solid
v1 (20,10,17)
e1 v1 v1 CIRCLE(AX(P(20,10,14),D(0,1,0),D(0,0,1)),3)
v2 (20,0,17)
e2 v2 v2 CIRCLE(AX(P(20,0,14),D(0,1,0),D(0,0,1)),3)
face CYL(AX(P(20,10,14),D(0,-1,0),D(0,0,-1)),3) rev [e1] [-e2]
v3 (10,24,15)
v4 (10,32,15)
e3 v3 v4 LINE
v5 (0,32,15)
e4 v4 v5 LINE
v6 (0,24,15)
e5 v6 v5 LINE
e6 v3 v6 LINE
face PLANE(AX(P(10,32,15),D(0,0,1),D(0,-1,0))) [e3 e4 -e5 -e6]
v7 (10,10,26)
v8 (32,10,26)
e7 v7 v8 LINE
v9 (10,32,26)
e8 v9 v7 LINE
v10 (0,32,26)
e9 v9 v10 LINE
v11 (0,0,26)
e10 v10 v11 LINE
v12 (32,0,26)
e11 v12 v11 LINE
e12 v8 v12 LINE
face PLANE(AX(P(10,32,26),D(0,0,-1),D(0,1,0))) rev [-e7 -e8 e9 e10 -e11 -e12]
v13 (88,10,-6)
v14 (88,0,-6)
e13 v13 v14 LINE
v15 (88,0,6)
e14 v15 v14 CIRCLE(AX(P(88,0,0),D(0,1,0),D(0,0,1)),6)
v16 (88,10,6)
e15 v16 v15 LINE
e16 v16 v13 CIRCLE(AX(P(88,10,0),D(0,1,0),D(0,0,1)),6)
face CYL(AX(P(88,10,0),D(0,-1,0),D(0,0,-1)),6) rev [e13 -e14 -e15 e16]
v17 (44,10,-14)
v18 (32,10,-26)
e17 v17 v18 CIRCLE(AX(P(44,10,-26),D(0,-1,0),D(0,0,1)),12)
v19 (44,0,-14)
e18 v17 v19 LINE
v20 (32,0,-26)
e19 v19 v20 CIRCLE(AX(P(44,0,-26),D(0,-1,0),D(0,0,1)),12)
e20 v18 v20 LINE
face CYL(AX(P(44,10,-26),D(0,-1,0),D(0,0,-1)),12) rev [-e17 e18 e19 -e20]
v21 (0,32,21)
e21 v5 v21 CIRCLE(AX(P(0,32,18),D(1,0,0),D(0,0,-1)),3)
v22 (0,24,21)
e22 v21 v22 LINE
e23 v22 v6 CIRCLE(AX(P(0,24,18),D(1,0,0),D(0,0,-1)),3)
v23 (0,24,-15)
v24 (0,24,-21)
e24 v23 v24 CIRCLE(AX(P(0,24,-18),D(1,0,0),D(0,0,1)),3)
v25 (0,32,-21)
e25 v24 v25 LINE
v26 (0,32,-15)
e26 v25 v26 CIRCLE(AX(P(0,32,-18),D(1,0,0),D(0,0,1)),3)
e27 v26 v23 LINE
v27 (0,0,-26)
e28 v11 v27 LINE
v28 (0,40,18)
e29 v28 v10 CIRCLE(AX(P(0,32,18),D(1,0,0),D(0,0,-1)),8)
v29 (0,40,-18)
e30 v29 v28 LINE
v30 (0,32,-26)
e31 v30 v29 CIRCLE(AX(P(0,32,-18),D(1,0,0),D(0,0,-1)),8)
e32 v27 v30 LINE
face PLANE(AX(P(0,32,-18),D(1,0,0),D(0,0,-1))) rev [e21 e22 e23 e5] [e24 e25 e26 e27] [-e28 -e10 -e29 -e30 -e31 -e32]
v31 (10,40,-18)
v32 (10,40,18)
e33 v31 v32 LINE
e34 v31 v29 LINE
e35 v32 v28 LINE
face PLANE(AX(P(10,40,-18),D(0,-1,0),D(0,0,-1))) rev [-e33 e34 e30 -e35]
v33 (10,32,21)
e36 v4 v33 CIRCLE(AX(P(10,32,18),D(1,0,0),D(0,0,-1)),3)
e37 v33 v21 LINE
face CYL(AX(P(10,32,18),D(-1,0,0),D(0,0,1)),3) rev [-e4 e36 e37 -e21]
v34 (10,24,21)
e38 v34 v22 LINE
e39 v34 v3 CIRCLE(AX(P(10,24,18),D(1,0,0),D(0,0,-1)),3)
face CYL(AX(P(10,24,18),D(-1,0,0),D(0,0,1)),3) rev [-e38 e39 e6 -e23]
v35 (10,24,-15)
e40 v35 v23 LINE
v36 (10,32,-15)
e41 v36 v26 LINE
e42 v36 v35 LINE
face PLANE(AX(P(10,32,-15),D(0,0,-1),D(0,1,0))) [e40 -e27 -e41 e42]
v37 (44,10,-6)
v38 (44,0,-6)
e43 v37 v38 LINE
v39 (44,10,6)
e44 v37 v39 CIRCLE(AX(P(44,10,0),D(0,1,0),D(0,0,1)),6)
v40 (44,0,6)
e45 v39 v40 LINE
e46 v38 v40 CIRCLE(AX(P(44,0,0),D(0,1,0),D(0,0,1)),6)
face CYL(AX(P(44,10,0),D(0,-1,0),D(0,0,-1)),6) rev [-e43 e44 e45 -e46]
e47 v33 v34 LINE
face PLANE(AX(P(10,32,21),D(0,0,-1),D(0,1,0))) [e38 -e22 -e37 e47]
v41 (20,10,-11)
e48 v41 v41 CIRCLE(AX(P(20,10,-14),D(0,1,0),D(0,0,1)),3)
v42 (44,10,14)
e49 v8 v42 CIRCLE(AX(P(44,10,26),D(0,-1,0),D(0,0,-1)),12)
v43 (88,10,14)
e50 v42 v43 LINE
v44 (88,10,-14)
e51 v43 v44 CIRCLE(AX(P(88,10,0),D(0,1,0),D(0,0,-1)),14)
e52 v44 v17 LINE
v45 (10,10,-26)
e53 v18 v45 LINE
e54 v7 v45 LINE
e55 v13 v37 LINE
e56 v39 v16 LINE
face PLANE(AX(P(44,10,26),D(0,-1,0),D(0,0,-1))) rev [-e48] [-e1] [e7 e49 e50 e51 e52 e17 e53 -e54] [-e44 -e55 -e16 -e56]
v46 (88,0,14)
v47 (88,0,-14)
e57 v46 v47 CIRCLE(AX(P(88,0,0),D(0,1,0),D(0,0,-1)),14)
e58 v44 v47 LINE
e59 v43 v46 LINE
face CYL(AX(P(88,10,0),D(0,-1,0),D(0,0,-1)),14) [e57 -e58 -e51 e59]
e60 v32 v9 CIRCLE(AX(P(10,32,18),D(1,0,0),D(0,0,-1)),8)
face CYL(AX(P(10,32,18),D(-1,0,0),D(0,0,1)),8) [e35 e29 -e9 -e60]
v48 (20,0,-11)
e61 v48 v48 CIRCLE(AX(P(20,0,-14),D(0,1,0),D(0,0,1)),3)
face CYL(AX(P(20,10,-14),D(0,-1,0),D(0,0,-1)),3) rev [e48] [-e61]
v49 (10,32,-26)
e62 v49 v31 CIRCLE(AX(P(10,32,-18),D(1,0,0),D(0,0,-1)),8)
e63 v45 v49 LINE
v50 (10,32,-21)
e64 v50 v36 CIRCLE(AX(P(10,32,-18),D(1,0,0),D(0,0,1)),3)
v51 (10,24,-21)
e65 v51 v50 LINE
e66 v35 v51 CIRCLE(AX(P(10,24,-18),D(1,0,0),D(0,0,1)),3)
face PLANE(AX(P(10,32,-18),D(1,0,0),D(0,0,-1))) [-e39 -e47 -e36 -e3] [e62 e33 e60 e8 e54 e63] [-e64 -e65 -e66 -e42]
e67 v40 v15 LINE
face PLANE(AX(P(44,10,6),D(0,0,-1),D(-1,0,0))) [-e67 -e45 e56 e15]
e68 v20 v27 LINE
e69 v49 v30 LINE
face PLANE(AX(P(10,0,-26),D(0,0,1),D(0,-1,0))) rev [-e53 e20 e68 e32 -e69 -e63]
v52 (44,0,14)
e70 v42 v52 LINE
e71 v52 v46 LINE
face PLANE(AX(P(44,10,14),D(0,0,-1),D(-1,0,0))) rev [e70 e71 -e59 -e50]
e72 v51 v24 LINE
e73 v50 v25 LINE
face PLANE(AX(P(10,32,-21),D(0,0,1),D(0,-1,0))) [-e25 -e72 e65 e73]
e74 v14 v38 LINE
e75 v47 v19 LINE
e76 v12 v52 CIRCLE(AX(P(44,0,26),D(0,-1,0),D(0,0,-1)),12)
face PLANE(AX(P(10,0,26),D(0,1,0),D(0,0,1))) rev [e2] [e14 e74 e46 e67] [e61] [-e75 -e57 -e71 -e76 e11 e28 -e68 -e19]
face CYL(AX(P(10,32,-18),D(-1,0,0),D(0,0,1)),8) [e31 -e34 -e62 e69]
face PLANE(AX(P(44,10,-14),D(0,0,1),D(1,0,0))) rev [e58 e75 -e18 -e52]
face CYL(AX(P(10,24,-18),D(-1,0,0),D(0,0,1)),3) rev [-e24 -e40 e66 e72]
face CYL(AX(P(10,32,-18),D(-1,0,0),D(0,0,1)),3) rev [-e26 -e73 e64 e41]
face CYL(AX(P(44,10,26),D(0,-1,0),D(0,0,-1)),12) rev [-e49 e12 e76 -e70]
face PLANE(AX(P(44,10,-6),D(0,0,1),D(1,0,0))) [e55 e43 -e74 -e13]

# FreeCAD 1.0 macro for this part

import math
import FreeCAD as App
import Part
import Sketcher
Q = App.Units.Quantity

doc = App.newDocument("Part")
params = doc.addObject("Spreadsheet::Sheet", "Params")
for row, (alias, value) in enumerate([
    ("sketch1_radius", "8 mm"),
    ("sketch1_radius2", "3 mm"),
    ("sketch1_width", "32 mm"),
    ("sketch1_width2", "8 mm"),
    ("sketch1_height", "52 mm"),
    ("pad1_length", "10 mm"),
    ("sketch2_diameter", "6 mm"),
    ("sketch2_radius", "12 mm"),
    ("sketch2_radius2", "14 mm"),
    ("sketch2_radius3", "6 mm"),
    ("sketch2_width", "32 mm"),
    ("pad2_length", "10 mm"),
], start=1):
    params.set(f"A{row}", alias)
    params.set(f"B{row}", "=" + value)
    params.setAlias(f"B{row}", alias)

body = doc.addObject("PartDesign::Body", "Body")

sketch1 = doc.addObject("Sketcher::SketchObject", "Sketch")
body.addObject(sketch1)
sketch1.AttachmentSupport = (doc.YZ_Plane, [""])
sketch1.MapMode = "FlatFace"
sketch1.addGeometry([
    Part.LineSegment(App.Vector(0, 26, 0), App.Vector(0, -26, 0)),
    Part.LineSegment(App.Vector(0, -26, 0), App.Vector(32, -26, 0)),
    Part.ArcOfCircle(Part.Circle(App.Vector(32, -18, 0), App.Vector(0, 0, 1), 8), math.radians(-90), math.radians(0)),
    Part.LineSegment(App.Vector(40, -18, 0), App.Vector(40, 18, 0)),
    Part.ArcOfCircle(Part.Circle(App.Vector(32, 18, 0), App.Vector(0, 0, 1), 8), math.radians(0), math.radians(90)),
    Part.LineSegment(App.Vector(32, 26, 0), App.Vector(0, 26, 0)),
    Part.ArcOfCircle(Part.Circle(App.Vector(32, 18, 0), App.Vector(0, 0, 1), 3), math.radians(-90), math.radians(90)),
    Part.LineSegment(App.Vector(32, 15, 0), App.Vector(24, 15, 0)),
    Part.ArcOfCircle(Part.Circle(App.Vector(24, 18, 0), App.Vector(0, 0, 1), 3), math.radians(90), math.radians(270)),
    Part.LineSegment(App.Vector(24, 21, 0), App.Vector(32, 21, 0)),
    Part.LineSegment(App.Vector(24, -15, 0), App.Vector(32, -15, 0)),
    Part.ArcOfCircle(Part.Circle(App.Vector(32, -18, 0), App.Vector(0, 0, 1), 3), math.radians(-90), math.radians(90)),
    Part.LineSegment(App.Vector(32, -21, 0), App.Vector(24, -21, 0)),
    Part.ArcOfCircle(Part.Circle(App.Vector(24, -18, 0), App.Vector(0, 0, 1), 3), math.radians(90), math.radians(270)),
], False)
sketch1.addConstraint([
    Sketcher.Constraint("Coincident", 0, 2, 1, 1),
    Sketcher.Constraint("Tangent", 1, 2, 2, 1),
    Sketcher.Constraint("Tangent", 2, 2, 3, 1),
    Sketcher.Constraint("Tangent", 3, 2, 4, 1),
    Sketcher.Constraint("Tangent", 4, 2, 5, 1),
    Sketcher.Constraint("Coincident", 5, 2, 0, 1),
    Sketcher.Constraint("Tangent", 6, 1, 7, 1),
    Sketcher.Constraint("Tangent", 7, 2, 8, 2),
    Sketcher.Constraint("Tangent", 8, 1, 9, 1),
    Sketcher.Constraint("Tangent", 9, 2, 6, 2),
    Sketcher.Constraint("Tangent", 10, 2, 11, 2),
    Sketcher.Constraint("Tangent", 11, 1, 12, 1),
    Sketcher.Constraint("Tangent", 12, 2, 13, 2),
    Sketcher.Constraint("Tangent", 13, 1, 10, 1),
    Sketcher.Constraint("Vertical", 0),
    Sketcher.Constraint("Horizontal", 1),
    Sketcher.Constraint("Vertical", 3),
    Sketcher.Constraint("Horizontal", 5),
    Sketcher.Constraint("Horizontal", 7),
    Sketcher.Constraint("Horizontal", 9),
    Sketcher.Constraint("Horizontal", 10),
    Sketcher.Constraint("Horizontal", 12),
    Sketcher.Constraint("Coincident", 6, 3, 4, 3),
    Sketcher.Constraint("Coincident", 11, 3, 2, 3),
    Sketcher.Constraint("Equal", 2, 4),
    Sketcher.Constraint("Equal", 8, 11),
    Sketcher.Constraint("Symmetric", 0, 2, 5, 2, -1, 1),
    Sketcher.Constraint("Vertical", 8, 3, 13, 3),
    Sketcher.Constraint("Radius", 2, Q("8 mm")),
    Sketcher.Constraint("Radius", 6, Q("3 mm")),
    Sketcher.Constraint("DistanceX", 1, 1, 1, 2, Q("32 mm")),
    Sketcher.Constraint("DistanceX", 7, 2, 7, 1, Q("8 mm")),
    Sketcher.Constraint("DistanceY", 0, 2, 0, 1, Q("52 mm")),
])
sketch1.setExpression("Constraints[28]", "Params.sketch1_radius")
sketch1.setExpression("Constraints[29]", "Params.sketch1_radius2")
sketch1.setExpression("Constraints[30]", "Params.sketch1_width")
sketch1.setExpression("Constraints[31]", "Params.sketch1_width2")
sketch1.setExpression("Constraints[32]", "Params.sketch1_height")
pad1 = doc.addObject("PartDesign::Pad", "Pad")
body.addObject(pad1)
pad1.Profile = sketch1
pad1.setExpression("Length", "Params.pad1_length")

sketch2 = doc.addObject("Sketcher::SketchObject", "Sketch001")
body.addObject(sketch2)
sketch2.AttachmentSupport = (doc.XZ_Plane, [""])
sketch2.MapMode = "FlatFace"
sketch2.addGeometry([
    Part.LineSegment(App.Vector(32, -26, 0), App.Vector(0, -26, 0)),
    Part.LineSegment(App.Vector(0, -26, 0), App.Vector(0, 26, 0)),
    Part.LineSegment(App.Vector(0, 26, 0), App.Vector(32, 26, 0)),
    Part.ArcOfCircle(Part.Circle(App.Vector(44, 26, 0), App.Vector(0, 0, 1), 12), math.radians(-180), math.radians(-90)),
    Part.LineSegment(App.Vector(44, 14, 0), App.Vector(88, 14, 0)),
    Part.ArcOfCircle(Part.Circle(App.Vector(88, 0, 0), App.Vector(0, 0, 1), 14), math.radians(-90), math.radians(90)),
    Part.LineSegment(App.Vector(88, -14, 0), App.Vector(44, -14, 0)),
    Part.ArcOfCircle(Part.Circle(App.Vector(44, -26, 0), App.Vector(0, 0, 1), 12), math.radians(90), math.radians(180)),
    Part.Circle(App.Vector(20, 14, 0), App.Vector(0, 0, 1), 3),
    Part.LineSegment(App.Vector(44, -6, 0), App.Vector(88, -6, 0)),
    Part.ArcOfCircle(Part.Circle(App.Vector(88, 0, 0), App.Vector(0, 0, 1), 6), math.radians(-90), math.radians(90)),
    Part.LineSegment(App.Vector(88, 6, 0), App.Vector(44, 6, 0)),
    Part.ArcOfCircle(Part.Circle(App.Vector(44, 0, 0), App.Vector(0, 0, 1), 6), math.radians(90), math.radians(270)),
    Part.Circle(App.Vector(20, -14, 0), App.Vector(0, 0, 1), 3),
], False)
sketch2.addConstraint([
    Sketcher.Constraint("Coincident", 0, 2, 1, 1),
    Sketcher.Constraint("Coincident", 1, 2, 2, 1),
    Sketcher.Constraint("Coincident", 2, 2, 3, 1),
    Sketcher.Constraint("Tangent", 3, 2, 4, 1),
    Sketcher.Constraint("Tangent", 4, 2, 5, 2),
    Sketcher.Constraint("Tangent", 5, 1, 6, 1),
    Sketcher.Constraint("Tangent", 6, 2, 7, 1),
    Sketcher.Constraint("Coincident", 7, 2, 0, 1),
    Sketcher.Constraint("Tangent", 9, 2, 10, 1),
    Sketcher.Constraint("Tangent", 10, 2, 11, 1),
    Sketcher.Constraint("Tangent", 11, 2, 12, 1),
    Sketcher.Constraint("Tangent", 12, 2, 9, 1),
    Sketcher.Constraint("Horizontal", 0),
    Sketcher.Constraint("Vertical", 1),
    Sketcher.Constraint("Horizontal", 2),
    Sketcher.Constraint("Horizontal", 4),
    Sketcher.Constraint("Horizontal", 6),
    Sketcher.Constraint("Horizontal", 9),
    Sketcher.Constraint("Horizontal", 11),
    Sketcher.Constraint("Coincident", 10, 3, 5, 3),
    Sketcher.Constraint("Equal", 3, 7),
    Sketcher.Constraint("Equal", 8, 13),
    Sketcher.Constraint("Symmetric", 0, 2, 1, 2, -1, 1),
    Sketcher.Constraint("Symmetric", 3, 3, 7, 3, -1),
    Sketcher.Constraint("Symmetric", 8, 3, 13, 3, -1),
    Sketcher.Constraint("Horizontal", 7, 3, 0, 2),
    Sketcher.Constraint("Horizontal", 8, 3, 3, 2),
    Sketcher.Constraint("Vertical", 7, 3, 12, 3),
    Sketcher.Constraint("Diameter", 8, Q("6 mm")),
    Sketcher.Constraint("Radius", 3, Q("12 mm")),
    Sketcher.Constraint("Radius", 5, Q("14 mm")),
    Sketcher.Constraint("Radius", 10, Q("6 mm")),
    Sketcher.Constraint("DistanceX", 0, 2, 0, 1, Q("32 mm")),
    Sketcher.Constraint("DistanceX", 4, 1, 4, 2, Q("44 mm")),
    Sketcher.Constraint("DistanceX", -1, 1, 8, 3, Q("20 mm")),
])
sketch2.setExpression("Constraints[28]", "Params.sketch2_diameter")
sketch2.setExpression("Constraints[29]", "Params.sketch2_radius")
sketch2.setExpression("Constraints[30]", "Params.sketch2_radius2")
sketch2.setExpression("Constraints[31]", "Params.sketch2_radius3")
sketch2.setExpression("Constraints[32]", "Params.sketch2_width")
pad2 = doc.addObject("PartDesign::Pad", "Pad001")
body.addObject(pad2)
pad2.Profile = sketch2
pad2.setExpression("Length", "Params.pad2_length")
pad2.Reversed = True

doc.recompute()
